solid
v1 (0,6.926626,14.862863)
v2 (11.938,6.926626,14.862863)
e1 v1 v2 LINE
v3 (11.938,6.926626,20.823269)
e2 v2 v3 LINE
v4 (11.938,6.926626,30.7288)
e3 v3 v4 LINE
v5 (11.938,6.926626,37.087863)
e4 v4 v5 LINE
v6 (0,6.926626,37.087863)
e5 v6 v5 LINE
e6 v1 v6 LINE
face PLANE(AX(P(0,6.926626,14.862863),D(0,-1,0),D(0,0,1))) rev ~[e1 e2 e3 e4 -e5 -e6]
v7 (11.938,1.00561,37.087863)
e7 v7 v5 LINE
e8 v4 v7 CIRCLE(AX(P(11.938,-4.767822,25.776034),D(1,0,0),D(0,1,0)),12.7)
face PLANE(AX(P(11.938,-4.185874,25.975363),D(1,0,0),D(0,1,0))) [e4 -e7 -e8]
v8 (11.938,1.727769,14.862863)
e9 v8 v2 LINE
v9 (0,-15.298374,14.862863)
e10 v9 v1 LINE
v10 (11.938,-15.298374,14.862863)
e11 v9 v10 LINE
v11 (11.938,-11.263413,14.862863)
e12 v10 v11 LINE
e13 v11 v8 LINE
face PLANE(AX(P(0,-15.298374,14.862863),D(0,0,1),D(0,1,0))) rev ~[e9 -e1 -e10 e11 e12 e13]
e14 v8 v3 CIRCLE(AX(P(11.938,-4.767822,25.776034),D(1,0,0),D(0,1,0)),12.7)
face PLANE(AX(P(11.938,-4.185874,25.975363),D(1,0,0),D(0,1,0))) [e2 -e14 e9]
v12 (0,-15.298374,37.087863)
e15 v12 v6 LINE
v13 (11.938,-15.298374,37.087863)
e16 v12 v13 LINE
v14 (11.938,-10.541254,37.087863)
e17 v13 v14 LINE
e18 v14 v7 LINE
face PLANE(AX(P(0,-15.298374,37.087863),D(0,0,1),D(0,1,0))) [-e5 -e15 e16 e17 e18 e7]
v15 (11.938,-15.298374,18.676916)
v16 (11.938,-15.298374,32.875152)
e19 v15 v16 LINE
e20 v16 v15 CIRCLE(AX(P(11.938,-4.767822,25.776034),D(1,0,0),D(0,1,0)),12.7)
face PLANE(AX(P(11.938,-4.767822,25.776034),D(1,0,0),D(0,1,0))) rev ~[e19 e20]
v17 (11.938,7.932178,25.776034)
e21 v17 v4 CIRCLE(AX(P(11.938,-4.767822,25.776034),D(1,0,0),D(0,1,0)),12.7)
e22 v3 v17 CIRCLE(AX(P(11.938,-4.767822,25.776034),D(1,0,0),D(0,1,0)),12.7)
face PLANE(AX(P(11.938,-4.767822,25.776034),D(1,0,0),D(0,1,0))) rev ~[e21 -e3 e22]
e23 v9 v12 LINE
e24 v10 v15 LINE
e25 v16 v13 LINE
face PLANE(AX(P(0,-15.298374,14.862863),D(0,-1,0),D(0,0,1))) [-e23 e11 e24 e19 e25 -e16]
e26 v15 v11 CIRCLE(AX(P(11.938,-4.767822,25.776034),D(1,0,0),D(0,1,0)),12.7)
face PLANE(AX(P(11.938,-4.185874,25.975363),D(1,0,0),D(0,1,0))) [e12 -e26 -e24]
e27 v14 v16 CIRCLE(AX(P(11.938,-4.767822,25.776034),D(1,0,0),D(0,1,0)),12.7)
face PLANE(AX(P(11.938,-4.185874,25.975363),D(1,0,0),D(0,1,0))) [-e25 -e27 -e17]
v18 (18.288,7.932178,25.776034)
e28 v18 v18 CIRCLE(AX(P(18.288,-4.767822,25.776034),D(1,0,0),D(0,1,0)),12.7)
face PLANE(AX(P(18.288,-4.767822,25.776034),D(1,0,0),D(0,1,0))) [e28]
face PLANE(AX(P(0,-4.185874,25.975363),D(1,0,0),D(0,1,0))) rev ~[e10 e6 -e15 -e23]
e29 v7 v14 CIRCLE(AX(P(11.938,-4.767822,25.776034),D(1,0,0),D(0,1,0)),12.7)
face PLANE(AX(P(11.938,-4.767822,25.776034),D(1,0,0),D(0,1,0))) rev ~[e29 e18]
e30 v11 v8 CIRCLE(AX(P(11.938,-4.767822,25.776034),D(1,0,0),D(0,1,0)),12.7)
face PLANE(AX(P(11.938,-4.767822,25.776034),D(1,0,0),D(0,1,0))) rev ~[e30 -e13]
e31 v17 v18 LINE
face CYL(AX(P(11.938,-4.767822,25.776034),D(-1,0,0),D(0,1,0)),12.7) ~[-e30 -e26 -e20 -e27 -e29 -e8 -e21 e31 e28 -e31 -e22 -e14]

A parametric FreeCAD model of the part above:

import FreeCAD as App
import Part
import Sketcher

V = App.Vector
Q = App.Units.Quantity

doc = App.newDocument("Part")
body = doc.addObject("PartDesign::Body", "Body")

sketch1 = body.newObject("Sketcher::SketchObject", "Sketch")
sketch1.AttachmentSupport = (doc.getObject("YZ_Plane"), [""])
sketch1.MapMode = "FlatFace"
sketch1.addGeometry([
    Part.LineSegment(V(-15.298374, 37.087863, 0), V(-15.298374, 14.862863, 0)),
    Part.LineSegment(V(-15.298374, 14.862863, 0), V(6.926626, 14.862863, 0)),
    Part.LineSegment(V(6.926626, 14.862863, 0), V(6.926626, 37.087863, 0)),
    Part.LineSegment(V(6.926626, 37.087863, 0), V(-15.298374, 37.087863, 0)),
    Part.Circle(V(-4.185874, 25.975363, 0), V(0, 0, 1), 5.08),
], False)
sketch1.addConstraint([
    Sketcher.Constraint("Coincident", 0, 2, 1, 1),
    Sketcher.Constraint("Coincident", 1, 2, 2, 1),
    Sketcher.Constraint("Coincident", 2, 2, 3, 1),
    Sketcher.Constraint("Coincident", 3, 2, 0, 1),
    Sketcher.Constraint("Vertical", 0),
    Sketcher.Constraint("Horizontal", 1),
    Sketcher.Constraint("Vertical", 2),
    Sketcher.Constraint("Horizontal", 3),
    Sketcher.Constraint("Equal", 3, 0),
    Sketcher.Constraint("Diameter", 4, Q("0.4 in")),
    Sketcher.Constraint("DistanceX", 1, 1, 1, 2, Q("0.875 in")),
    Sketcher.Constraint("DistanceX", 0, 2, 4, 3, Q("0.4375 in")),
    Sketcher.Constraint("DistanceY", 0, 2, 4, 3, Q("0.4375 in")),
    Sketcher.Constraint("DistanceX", 4, 3, -1, 1, Q("4.185874 mm")),
    Sketcher.Constraint("DistanceY", -1, 1, 4, 3, Q("25.975363 mm")),
])
pad1 = body.newObject("PartDesign::Pad", "Pad")
pad1.Profile = sketch1
pad1.Length = Q("0.47 in")

sketch2 = body.newObject("Sketcher::SketchObject", "Sketch001")
sketch2.AttachmentSupport = (doc.getObject("YZ_Plane"), [""])
sketch2.MapMode = "FlatFace"
sketch2.addGeometry(Part.Circle(V(-4.185874, 25.975363, 0), V(0, 0, 1), 5.08), False)
sketch2.addConstraint([
    Sketcher.Constraint("Diameter", 0, Q("0.4 in")),
    Sketcher.Constraint("DistanceX", 0, 3, -1, 1, Q("4.185874 mm")),
    Sketcher.Constraint("DistanceY", -1, 1, 0, 3, Q("25.975363 mm")),
])
pad2 = body.newObject("PartDesign::Pad", "Pad001")
pad2.Profile = sketch2
pad2.Length = Q("0.72 in")

sketch3 = body.newObject("Sketcher::SketchObject", "Sketch002")
sketch3.AttachmentSupport = (doc.getObject("YZ_Plane"), [""])
sketch3.MapMode = "FlatFace"
sketch3.AttachmentOffset = App.Placement(V(0, 0, 0.47 * 25.4), App.Rotation())
sketch3.addGeometry(Part.Circle(V(-4.767822, 25.776034, 0), V(0, 0, 1), 12.7), False)
sketch3.addConstraint([
    Sketcher.Constraint("Diameter", 0, Q("1 in")),
    Sketcher.Constraint("DistanceX", 0, 3, -1, 1, Q("4.767822 mm")),
    Sketcher.Constraint("DistanceY", -1, 1, 0, 3, Q("25.776034 mm")),
])
pad3 = body.newObject("PartDesign::Pad", "Pad002")
pad3.Profile = sketch3
pad3.Length = Q("0.25 in")

doc.recompute()
